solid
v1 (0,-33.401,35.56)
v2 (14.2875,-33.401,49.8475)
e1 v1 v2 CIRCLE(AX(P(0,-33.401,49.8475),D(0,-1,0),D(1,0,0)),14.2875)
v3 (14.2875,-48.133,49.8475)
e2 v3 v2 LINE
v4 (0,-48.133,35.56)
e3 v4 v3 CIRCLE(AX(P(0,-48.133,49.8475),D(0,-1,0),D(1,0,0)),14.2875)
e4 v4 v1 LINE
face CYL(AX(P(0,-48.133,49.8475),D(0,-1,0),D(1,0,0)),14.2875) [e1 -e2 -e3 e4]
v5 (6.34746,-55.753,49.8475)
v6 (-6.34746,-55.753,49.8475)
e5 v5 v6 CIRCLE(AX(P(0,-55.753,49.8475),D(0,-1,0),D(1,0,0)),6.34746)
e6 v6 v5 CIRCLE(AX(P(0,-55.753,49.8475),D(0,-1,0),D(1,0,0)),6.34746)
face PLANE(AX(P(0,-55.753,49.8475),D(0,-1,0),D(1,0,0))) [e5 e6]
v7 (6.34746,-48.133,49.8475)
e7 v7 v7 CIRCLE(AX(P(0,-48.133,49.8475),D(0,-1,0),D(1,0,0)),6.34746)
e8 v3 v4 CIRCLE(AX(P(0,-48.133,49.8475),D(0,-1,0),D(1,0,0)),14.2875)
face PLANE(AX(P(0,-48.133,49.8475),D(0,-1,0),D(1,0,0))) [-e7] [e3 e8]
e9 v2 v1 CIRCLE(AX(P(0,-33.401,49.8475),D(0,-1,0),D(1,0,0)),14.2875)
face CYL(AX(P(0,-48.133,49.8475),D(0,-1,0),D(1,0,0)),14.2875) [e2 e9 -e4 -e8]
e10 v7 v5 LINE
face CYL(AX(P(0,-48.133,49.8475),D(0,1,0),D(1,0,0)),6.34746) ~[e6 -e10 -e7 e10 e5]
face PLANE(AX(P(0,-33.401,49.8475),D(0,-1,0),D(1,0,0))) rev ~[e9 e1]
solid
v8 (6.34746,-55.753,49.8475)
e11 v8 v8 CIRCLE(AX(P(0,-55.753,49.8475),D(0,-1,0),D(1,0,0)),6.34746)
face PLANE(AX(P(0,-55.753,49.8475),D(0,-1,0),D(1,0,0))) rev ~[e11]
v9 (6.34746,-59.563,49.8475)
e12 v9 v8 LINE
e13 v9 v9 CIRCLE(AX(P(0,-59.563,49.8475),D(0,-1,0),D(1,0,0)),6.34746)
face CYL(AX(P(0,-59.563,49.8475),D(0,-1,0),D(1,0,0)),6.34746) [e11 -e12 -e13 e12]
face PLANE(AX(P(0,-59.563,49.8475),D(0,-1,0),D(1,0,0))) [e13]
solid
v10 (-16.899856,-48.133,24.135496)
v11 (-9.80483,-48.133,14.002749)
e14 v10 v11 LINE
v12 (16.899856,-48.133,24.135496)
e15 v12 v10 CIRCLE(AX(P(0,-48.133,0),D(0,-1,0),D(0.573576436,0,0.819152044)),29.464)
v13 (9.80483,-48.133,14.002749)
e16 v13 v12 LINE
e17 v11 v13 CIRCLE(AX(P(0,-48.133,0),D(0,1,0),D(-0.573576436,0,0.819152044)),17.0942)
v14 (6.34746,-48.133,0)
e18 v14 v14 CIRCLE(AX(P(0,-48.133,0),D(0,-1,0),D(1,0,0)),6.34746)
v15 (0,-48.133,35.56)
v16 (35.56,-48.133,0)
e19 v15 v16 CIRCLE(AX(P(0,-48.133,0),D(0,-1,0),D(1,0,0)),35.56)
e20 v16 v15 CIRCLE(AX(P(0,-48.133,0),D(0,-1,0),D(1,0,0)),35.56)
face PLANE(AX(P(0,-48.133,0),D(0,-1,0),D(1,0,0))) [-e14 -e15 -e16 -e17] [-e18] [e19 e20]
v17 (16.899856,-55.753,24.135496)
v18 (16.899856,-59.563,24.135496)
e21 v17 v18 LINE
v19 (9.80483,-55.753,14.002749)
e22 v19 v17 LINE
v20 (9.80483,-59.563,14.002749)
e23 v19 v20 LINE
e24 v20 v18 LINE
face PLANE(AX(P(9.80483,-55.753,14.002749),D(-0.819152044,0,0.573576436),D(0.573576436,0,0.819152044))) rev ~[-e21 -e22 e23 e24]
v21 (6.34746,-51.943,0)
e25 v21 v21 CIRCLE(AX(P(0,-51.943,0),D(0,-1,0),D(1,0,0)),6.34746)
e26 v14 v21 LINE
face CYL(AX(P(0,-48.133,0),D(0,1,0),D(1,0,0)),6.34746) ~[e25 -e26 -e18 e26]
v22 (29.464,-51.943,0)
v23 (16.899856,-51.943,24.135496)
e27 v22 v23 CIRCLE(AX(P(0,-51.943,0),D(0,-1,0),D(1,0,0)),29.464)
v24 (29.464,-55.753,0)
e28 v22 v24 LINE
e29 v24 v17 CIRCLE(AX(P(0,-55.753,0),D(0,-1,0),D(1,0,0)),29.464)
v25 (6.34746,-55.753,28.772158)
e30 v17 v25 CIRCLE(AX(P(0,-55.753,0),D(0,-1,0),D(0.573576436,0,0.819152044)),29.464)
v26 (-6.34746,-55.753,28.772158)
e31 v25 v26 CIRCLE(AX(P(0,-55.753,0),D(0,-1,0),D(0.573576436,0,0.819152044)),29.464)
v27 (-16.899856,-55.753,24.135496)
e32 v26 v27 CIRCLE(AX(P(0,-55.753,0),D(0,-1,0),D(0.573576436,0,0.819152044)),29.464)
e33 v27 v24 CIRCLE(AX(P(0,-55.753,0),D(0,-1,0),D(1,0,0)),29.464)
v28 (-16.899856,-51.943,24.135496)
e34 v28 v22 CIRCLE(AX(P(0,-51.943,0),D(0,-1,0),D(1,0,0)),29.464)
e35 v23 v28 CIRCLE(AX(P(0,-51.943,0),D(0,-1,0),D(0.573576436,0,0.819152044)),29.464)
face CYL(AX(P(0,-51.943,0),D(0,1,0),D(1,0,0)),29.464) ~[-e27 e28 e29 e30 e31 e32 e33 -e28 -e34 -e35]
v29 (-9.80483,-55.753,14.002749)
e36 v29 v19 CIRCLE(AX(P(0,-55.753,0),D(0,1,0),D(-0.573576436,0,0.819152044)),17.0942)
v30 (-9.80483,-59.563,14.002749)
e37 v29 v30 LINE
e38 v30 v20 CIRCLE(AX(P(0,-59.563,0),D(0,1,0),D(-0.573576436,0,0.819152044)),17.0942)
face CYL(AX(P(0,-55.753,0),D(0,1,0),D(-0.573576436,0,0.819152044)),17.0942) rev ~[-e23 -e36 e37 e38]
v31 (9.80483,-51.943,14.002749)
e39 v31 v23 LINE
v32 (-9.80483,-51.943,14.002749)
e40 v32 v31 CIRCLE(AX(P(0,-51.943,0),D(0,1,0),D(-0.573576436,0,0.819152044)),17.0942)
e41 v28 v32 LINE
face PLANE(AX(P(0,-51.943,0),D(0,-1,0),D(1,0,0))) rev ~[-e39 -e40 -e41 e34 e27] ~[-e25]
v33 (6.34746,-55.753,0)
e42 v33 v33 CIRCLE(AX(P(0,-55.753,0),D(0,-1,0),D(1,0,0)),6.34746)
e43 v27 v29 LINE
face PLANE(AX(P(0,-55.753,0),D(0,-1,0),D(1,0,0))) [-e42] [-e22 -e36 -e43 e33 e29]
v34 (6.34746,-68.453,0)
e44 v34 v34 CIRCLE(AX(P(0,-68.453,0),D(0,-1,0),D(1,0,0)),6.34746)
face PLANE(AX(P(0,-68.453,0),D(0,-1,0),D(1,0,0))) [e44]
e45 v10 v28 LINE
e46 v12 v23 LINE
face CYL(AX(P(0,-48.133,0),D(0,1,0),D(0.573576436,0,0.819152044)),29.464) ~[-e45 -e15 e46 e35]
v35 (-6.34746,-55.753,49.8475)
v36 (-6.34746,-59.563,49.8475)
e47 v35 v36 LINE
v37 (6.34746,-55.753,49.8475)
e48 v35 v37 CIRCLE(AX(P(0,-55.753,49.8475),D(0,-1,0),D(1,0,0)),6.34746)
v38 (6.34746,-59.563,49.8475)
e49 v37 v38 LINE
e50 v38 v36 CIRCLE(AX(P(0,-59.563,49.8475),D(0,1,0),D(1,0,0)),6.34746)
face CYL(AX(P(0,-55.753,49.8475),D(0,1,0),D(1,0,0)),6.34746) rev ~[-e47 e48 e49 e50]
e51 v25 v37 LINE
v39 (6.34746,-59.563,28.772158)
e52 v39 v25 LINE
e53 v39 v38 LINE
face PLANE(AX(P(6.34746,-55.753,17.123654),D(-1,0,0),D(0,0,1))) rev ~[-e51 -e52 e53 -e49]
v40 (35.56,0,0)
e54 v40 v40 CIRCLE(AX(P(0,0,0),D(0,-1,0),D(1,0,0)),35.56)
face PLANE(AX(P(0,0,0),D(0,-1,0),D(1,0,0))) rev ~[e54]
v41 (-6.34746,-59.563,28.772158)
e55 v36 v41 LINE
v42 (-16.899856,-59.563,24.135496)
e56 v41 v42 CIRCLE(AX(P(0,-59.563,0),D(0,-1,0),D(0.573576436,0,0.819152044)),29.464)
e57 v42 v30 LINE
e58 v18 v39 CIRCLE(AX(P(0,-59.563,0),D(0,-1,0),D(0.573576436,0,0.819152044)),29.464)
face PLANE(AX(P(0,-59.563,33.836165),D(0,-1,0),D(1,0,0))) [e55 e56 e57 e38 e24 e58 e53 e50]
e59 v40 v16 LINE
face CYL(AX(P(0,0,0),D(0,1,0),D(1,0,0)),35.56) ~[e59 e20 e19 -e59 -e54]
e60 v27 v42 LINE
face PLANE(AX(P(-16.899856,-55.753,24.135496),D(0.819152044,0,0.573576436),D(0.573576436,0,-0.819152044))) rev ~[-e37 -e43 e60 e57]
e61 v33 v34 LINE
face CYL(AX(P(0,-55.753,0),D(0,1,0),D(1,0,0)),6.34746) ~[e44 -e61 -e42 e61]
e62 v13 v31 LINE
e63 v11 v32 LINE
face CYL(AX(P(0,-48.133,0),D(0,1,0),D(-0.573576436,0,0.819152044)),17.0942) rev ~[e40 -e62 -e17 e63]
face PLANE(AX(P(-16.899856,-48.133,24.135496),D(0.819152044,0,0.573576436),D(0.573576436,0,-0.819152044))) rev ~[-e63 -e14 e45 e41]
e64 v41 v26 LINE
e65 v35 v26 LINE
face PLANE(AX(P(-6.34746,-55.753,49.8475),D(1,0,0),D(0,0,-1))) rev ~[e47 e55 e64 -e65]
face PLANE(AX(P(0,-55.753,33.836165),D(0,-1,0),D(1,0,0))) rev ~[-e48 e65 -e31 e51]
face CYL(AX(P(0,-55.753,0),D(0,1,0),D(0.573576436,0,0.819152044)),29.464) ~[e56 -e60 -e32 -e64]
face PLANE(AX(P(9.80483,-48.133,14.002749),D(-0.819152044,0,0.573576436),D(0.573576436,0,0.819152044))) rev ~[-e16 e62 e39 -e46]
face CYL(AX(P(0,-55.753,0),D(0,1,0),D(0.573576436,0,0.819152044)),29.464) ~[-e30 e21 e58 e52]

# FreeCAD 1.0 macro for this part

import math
import FreeCAD as App
import Part
import Sketcher
from FreeCAD import Vector
Q = App.Units.Quantity

doc = App.newDocument("Part")
params = doc.addObject("Spreadsheet::Sheet", "Params")
for row, (alias, value) in enumerate([
    ("sketch1_diameter", "2.8 in"),
    ("pad1_length", "1.895 in"),
    ("sketch2_diameter", "1.125 in"),
    ("pad2_length", "0.58 in"),
    ("pad3_length", "0.15 in"),
    ("sketch4_radius", "1.16 in"),
    ("sketch4_radius2", "0.673 in"),
    ("pad4_length", "0.15 in"),
    ("pad5_length", "0.3 in"),
    ("sketch6_diameter", "2.32 in"),
    ("pad6_length", "0.15 in"),
    ("pad7_length", "0.5 in"),
    ("sketch8_radius", "1.16 in"),
    ("sketch8_radius2", "0.673 in"),
    ("pad8_length", "0.15 in"),
    ("pad9_length", "0.15 in"),
    ("pad10_length", "0.15 in"),
], start=1):
    params.set(f"A{row}", alias)
    params.set(f"B{row}", "=" + value)
    params.setAlias(f"B{row}", alias)

body = doc.addObject("PartDesign::Body", "Body")
body.AllowCompound = True

sketch1 = doc.addObject("Sketcher::SketchObject", "Sketch")
body.addObject(sketch1)
sketch1.AttachmentSupport = (doc.XZ_Plane, [""])
sketch1.MapMode = "FlatFace"
sketch1.addGeometry(Part.Circle(Vector(0, 0, 0), Vector(0, 0, 1), 36), False)
sketch1.addConstraint([
    Sketcher.Constraint("Coincident", 0, 3, -1, 1),
    Sketcher.Constraint("Diameter", 0, Q("2.8 in")),
])
sketch1.setExpression("Constraints[1]", "Params.sketch1_diameter")
pad1 = doc.addObject("PartDesign::Pad", "Pad")
body.addObject(pad1)
pad1.Profile = sketch1
pad1.setExpression("Length", "Params.pad1_length")

sketch2 = doc.addObject("Sketcher::SketchObject", "Sketch001")
body.addObject(sketch2)
sketch2.AttachmentSupport = (doc.XZ_Plane, [""])
sketch2.MapMode = "FlatFace"
sketch2.AttachmentOffset = App.Placement(Vector(0, 0, 1.895 * 25.4), App.Rotation())
sketch2.addGeometry(Part.Circle(Vector(0, 50, 0), Vector(0, 0, 1), 14), False)
sketch2.addConstraint([
    Sketcher.Constraint("PointOnObject", 0, 3, -2),
    Sketcher.Constraint("Diameter", 0, Q("1.125 in")),
    Sketcher.Constraint("DistanceY", -1, 1, 0, 3, Q("1.9625 in")),
])
sketch2.setExpression("Constraints[1]", "Params.sketch2_diameter")
pad2 = doc.addObject("PartDesign::Pad", "Pad001")
body.addObject(pad2)
pad2.Profile = sketch2
pad2.setExpression("Length", "Params.pad2_length")
pad2.Reversed = True

sketch3 = doc.addObject("Sketcher::SketchObject", "Sketch002")
body.addObject(sketch3)
sketch3.AttachmentSupport = (doc.XZ_Plane, [""])
sketch3.MapMode = "FlatFace"
sketch3.AttachmentOffset = App.Placement(Vector(0, 0, 1.895 * 25.4), App.Rotation())
sketch3.addGeometry(Part.Circle(Vector(0, 0, 0), Vector(0, 0, 1), 6), False)
sketch3.addConstraint([
    Sketcher.Constraint("Coincident", 0, 3, -1, 1),
    Sketcher.Constraint("Diameter", 0, Q("0.4998 in")),
])
pad3 = doc.addObject("PartDesign::Pad", "Pad002")
body.addObject(pad3)
pad3.Profile = sketch3
pad3.setExpression("Length", "Params.pad3_length")

sketch4 = doc.addObject("Sketcher::SketchObject", "Sketch003")
body.addObject(sketch4)
sketch4.AttachmentSupport = (doc.XZ_Plane, [""])
sketch4.MapMode = "FlatFace"
sketch4.AttachmentOffset = App.Placement(Vector(0, 0, 1.895 * 25.4), App.Rotation())
sketch4.addGeometry([
    Part.ArcOfCircle(Part.Circle(Vector(0, 0, 0), Vector(0, 0, 1), 17), math.radians(55), math.radians(125)),
    Part.LineSegment(Vector(10, 14, 0), Vector(17, 24, 0)),
    Part.ArcOfCircle(Part.Circle(Vector(0, 0, 0), Vector(0, 0, 1), 29), math.radians(55), math.radians(125)),
    Part.LineSegment(Vector(-17, 24, 0), Vector(-10, 14, 0)),
], False)
sketch4.addConstraint([
    Sketcher.Constraint("Coincident", 0, 1, 1, 1),
    Sketcher.Constraint("Coincident", 1, 2, 2, 1),
    Sketcher.Constraint("Coincident", 2, 2, 3, 1),
    Sketcher.Constraint("Coincident", 3, 2, 0, 2),
    Sketcher.Constraint("Coincident", 0, 3, -1, 1),
    Sketcher.Constraint("Coincident", 2, 3, -1, 1),
    Sketcher.Constraint("Horizontal", 1, 2, 2, 2),
    Sketcher.Constraint("Horizontal", 0, 1, 3, 2),
    Sketcher.Constraint("Radius", 2, Q("1.16 in")),
    Sketcher.Constraint("Angle", 1, Q("55 deg")),
    Sketcher.Constraint("Radius", 0, Q("0.673 in")),
    Sketcher.Constraint("DistanceX", -1, 1, 0, 1, 9.80483),
])
sketch4.setExpression("Constraints[8]", "Params.sketch4_radius")
sketch4.setExpression("Constraints[10]", "Params.sketch4_radius2")
pad4 = doc.addObject("PartDesign::Pad", "Pad003")
body.addObject(pad4)
pad4.Profile = sketch4
pad4.setExpression("Length", "Params.pad4_length")

sketch5 = doc.addObject("Sketcher::SketchObject", "Sketch004")
body.addObject(sketch5)
sketch5.AttachmentSupport = (doc.XZ_Plane, [""])
sketch5.MapMode = "FlatFace"
sketch5.AttachmentOffset = App.Placement(Vector(0, 0, 1.895 * 25.4), App.Rotation())
sketch5.addGeometry(Part.Circle(Vector(0, 50, 0), Vector(0, 0, 1), 6), False)
sketch5.addConstraint([
    Sketcher.Constraint("PointOnObject", 0, 3, -2),
    Sketcher.Constraint("Diameter", 0, Q("0.4998 in")),
    Sketcher.Constraint("DistanceY", -1, 1, 0, 3, Q("1.9625 in")),
])
pad5 = doc.addObject("PartDesign::Pad", "Pad004")
body.addObject(pad5)
pad5.Profile = sketch5
pad5.setExpression("Length", "Params.pad5_length")

sketch6 = doc.addObject("Sketcher::SketchObject", "Sketch005")
body.addObject(sketch6)
sketch6.AttachmentSupport = (doc.XZ_Plane, [""])
sketch6.MapMode = "FlatFace"
sketch6.AttachmentOffset = App.Placement(Vector(0, 0, 2.045 * 25.4), App.Rotation())
sketch6.addGeometry(Part.Circle(Vector(0, 0, 0), Vector(0, 0, 1), 29), False)
sketch6.addConstraint([
    Sketcher.Constraint("Coincident", 0, 3, -1, 1),
    Sketcher.Constraint("Diameter", 0, Q("2.32 in")),
])
sketch6.setExpression("Constraints[1]", "Params.sketch6_diameter")
pad6 = doc.addObject("PartDesign::Pad", "Pad005")
body.addObject(pad6)
pad6.Profile = sketch6
pad6.setExpression("Length", "Params.pad6_length")

sketch7 = doc.addObject("Sketcher::SketchObject", "Sketch006")
body.addObject(sketch7)
sketch7.AttachmentSupport = (doc.XZ_Plane, [""])
sketch7.MapMode = "FlatFace"
sketch7.AttachmentOffset = App.Placement(Vector(0, 0, 2.195 * 25.4), App.Rotation())
sketch7.addGeometry(Part.Circle(Vector(0, 0, 0), Vector(0, 0, 1), 6), False)
sketch7.addConstraint([
    Sketcher.Constraint("Coincident", 0, 3, -1, 1),
    Sketcher.Constraint("Diameter", 0, Q("0.4998 in")),
])
pad7 = doc.addObject("PartDesign::Pad", "Pad006")
body.addObject(pad7)
pad7.Profile = sketch7
pad7.setExpression("Length", "Params.pad7_length")

sketch8 = doc.addObject("Sketcher::SketchObject", "Sketch007")
body.addObject(sketch8)
sketch8.AttachmentSupport = (doc.XZ_Plane, [""])
sketch8.MapMode = "FlatFace"
sketch8.AttachmentOffset = App.Placement(Vector(0, 0, 2.195 * 25.4), App.Rotation())
sketch8.addGeometry([
    Part.ArcOfCircle(Part.Circle(Vector(0, 0, 0), Vector(0, 0, 1), 17), math.radians(55), math.radians(125)),
    Part.LineSegment(Vector(10, 14, 0), Vector(17, 24, 0)),
    Part.ArcOfCircle(Part.Circle(Vector(0, 0, 0), Vector(0, 0, 1), 29), math.radians(55), math.radians(125)),
    Part.LineSegment(Vector(-17, 24, 0), Vector(-10, 14, 0)),
], False)
sketch8.addConstraint([
    Sketcher.Constraint("Coincident", 0, 1, 1, 1),
    Sketcher.Constraint("Coincident", 1, 2, 2, 1),
    Sketcher.Constraint("Coincident", 2, 2, 3, 1),
    Sketcher.Constraint("Coincident", 3, 2, 0, 2),
    Sketcher.Constraint("Coincident", 0, 3, -1, 1),
    Sketcher.Constraint("Coincident", 2, 3, -1, 1),
    Sketcher.Constraint("Horizontal", 1, 2, 2, 2),
    Sketcher.Constraint("Horizontal", 0, 1, 3, 2),
    Sketcher.Constraint("Radius", 2, Q("1.16 in")),
    Sketcher.Constraint("Angle", 1, Q("55 deg")),
    Sketcher.Constraint("Radius", 0, Q("0.673 in")),
    Sketcher.Constraint("DistanceX", -1, 1, 0, 1, 9.80483),
])
sketch8.setExpression("Constraints[8]", "Params.sketch8_radius")
sketch8.setExpression("Constraints[10]", "Params.sketch8_radius2")
pad8 = doc.addObject("PartDesign::Pad", "Pad007")
body.addObject(pad8)
pad8.Profile = sketch8
pad8.setExpression("Length", "Params.pad8_length")

sketch9 = doc.addObject("Sketcher::SketchObject", "Sketch008")
body.addObject(sketch9)
sketch9.AttachmentSupport = (doc.XZ_Plane, [""])
sketch9.MapMode = "FlatFace"
sketch9.AttachmentOffset = App.Placement(Vector(0, 0, 2.195 * 25.4), App.Rotation())
sketch9.addGeometry([
    Part.ArcOfCircle(Part.Circle(Vector(0, 50, 0), Vector(0, 0, 1), 6), math.radians(180), math.radians(360)),
    Part.LineSegment(Vector(-6, 50, 0), Vector(-6, 17, 0)),
    Part.LineSegment(Vector(-6, 17, 0), Vector(6, 17, 0)),
    Part.LineSegment(Vector(6, 17, 0), Vector(6, 50, 0)),
], False)
sketch9.addConstraint([
    Sketcher.Constraint("Tangent", 0, 1, 1, 1),
    Sketcher.Constraint("Coincident", 1, 2, 2, 1),
    Sketcher.Constraint("Coincident", 2, 2, 3, 1),
    Sketcher.Constraint("Tangent", 3, 2, 0, 2),
    Sketcher.Constraint("Vertical", 1),
    Sketcher.Constraint("Horizontal", 2),
    Sketcher.Constraint("Vertical", 3),
    Sketcher.Constraint("PointOnObject", 0, 3, -2),
    Sketcher.Constraint("Radius", 0, Q("0.2499 in")),
    Sketcher.Constraint("DistanceY", -1, 1, 0, 3, Q("1.9625 in")),
    Sketcher.Constraint("DistanceY", 1, 2, 1, 1, 32.723846),
])
pad9 = doc.addObject("PartDesign::Pad", "Pad008")
body.addObject(pad9)
pad9.Profile = sketch9
pad9.setExpression("Length", "Params.pad9_length")
body2 = doc.addObject("PartDesign::Body", "Body001")

sketch10 = doc.addObject("Sketcher::SketchObject", "Sketch009")
body2.addObject(sketch10)
sketch10.AttachmentSupport = (doc.getObject("XZ_Plane001"), [""])
sketch10.MapMode = "FlatFace"
sketch10.AttachmentOffset = App.Placement(Vector(0, 0, 2.345 * 25.4), App.Rotation())
sketch10.addGeometry(Part.Circle(Vector(0, 50, 0), Vector(0, 0, 1), 6), False)
sketch10.addConstraint([
    Sketcher.Constraint("PointOnObject", 0, 3, -2),
    Sketcher.Constraint("Diameter", 0, Q("0.4998 in")),
    Sketcher.Constraint("DistanceY", -1, 1, 0, 3, Q("1.9625 in")),
])
pad10 = doc.addObject("PartDesign::Pad", "Pad009")
body2.addObject(pad10)
pad10.Profile = sketch10
pad10.setExpression("Length", "Params.pad10_length")
pad10.Reversed = True

doc.recompute()
